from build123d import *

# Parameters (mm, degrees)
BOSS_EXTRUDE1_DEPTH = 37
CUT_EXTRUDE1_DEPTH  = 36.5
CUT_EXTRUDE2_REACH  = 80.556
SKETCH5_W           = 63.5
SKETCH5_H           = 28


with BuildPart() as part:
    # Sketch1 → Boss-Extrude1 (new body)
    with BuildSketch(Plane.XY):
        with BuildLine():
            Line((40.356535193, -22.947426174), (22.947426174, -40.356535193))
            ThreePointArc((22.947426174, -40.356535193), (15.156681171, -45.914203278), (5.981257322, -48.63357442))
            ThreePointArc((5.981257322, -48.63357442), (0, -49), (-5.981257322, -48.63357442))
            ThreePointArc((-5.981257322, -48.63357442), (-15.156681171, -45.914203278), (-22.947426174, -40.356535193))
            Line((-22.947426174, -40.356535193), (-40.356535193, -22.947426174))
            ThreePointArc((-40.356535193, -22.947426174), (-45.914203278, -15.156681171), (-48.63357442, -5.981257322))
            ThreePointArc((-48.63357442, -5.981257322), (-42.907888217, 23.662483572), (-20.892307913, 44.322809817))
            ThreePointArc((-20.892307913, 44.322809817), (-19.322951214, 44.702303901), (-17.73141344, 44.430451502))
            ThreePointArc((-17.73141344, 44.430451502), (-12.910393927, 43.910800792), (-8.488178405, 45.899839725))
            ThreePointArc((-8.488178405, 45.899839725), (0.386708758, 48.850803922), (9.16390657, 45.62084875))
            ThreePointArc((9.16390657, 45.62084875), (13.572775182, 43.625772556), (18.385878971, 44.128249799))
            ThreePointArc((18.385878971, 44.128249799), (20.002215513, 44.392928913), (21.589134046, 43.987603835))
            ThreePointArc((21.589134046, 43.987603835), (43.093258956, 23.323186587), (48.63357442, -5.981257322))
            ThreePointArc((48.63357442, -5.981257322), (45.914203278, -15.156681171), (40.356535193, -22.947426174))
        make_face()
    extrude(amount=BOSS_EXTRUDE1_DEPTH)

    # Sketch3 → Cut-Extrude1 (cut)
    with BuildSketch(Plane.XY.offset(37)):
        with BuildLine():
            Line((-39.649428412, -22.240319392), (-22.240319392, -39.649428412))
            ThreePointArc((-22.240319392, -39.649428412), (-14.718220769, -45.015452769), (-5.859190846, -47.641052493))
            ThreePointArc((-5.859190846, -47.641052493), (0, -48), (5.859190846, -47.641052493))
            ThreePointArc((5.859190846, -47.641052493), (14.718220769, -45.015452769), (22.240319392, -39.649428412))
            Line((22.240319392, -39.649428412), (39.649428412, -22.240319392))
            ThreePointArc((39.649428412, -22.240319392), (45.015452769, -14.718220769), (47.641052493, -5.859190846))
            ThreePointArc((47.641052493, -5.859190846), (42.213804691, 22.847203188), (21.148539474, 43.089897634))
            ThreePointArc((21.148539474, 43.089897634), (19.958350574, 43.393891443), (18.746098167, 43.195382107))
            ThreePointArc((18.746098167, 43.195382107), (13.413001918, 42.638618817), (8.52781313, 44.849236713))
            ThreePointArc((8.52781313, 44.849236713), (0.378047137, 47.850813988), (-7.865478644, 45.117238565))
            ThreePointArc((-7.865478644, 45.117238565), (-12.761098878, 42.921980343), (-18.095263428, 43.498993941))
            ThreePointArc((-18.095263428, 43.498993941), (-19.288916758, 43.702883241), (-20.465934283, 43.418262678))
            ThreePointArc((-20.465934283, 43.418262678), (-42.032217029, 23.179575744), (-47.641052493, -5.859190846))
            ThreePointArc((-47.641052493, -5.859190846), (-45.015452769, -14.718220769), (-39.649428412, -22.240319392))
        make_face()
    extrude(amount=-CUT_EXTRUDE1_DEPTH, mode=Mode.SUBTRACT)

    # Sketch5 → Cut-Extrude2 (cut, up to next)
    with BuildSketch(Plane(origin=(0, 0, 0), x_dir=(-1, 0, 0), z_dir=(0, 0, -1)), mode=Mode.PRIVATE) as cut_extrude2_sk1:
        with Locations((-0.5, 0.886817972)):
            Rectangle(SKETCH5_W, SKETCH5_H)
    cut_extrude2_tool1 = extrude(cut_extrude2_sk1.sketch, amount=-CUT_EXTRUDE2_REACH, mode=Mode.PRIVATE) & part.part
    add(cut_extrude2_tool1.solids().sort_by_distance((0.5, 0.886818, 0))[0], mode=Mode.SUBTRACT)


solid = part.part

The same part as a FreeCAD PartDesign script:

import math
import FreeCAD as App
import Part
import Sketcher
from FreeCAD import Vector

doc = App.newDocument("Part")
body = doc.addObject("PartDesign::Body", "Body")

# Sketch on XY plane
sketch1 = body.newObject("Sketcher::SketchObject", "Sketch")
sketch1.AttachmentSupport = (doc.getObject("XY_Plane"), [""])
sketch1.MapMode = "FlatFace"
sketch1.addGeometry([
    Part.LineSegment(Vector(22.947426, -40.356535, 0), Vector(40.356535, -22.947426, 0)),  # 0
    Part.ArcOfCircle(Part.Circle(Vector(19.850439, -2.44133, 0), Vector(0, 0, 1), 29), math.radians(-45), math.radians(-7.01138)),  # 1
    Part.ArcOfCircle(Part.Circle(Vector(0, 0, 0), Vector(0, 0, 1), 49), math.radians(-7.01138), math.radians(63.858177)),  # 2
    Part.ArcOfCircle(Part.Circle(Vector(19.826756, 40.396779, 0), Vector(0, 0, 1), 4), math.radians(63.858177), math.radians(111.113658)),  # 3
    Part.ArcOfCircle(Part.Circle(Vector(15.051653, 52.762969, 0), Vector(0, 0, 1), 9.256103), math.radians(-129.50113), math.radians(-68.886342)),  # 4
    Part.ArcOfCircle(Part.Circle(Vector(0.163094, 34.702429, 0), Vector(0, 0, 1), 14.150142), math.radians(50.49887), math.radians(127.690163)),  # 5
    Part.ArcOfCircle(Part.Circle(Vector(-14.36358, 53.052119, 0), Vector(0, 0, 1), 9.256103), math.radians(-111.336826), math.radians(-50.597829)),  # 6
    Part.ArcOfCircle(Part.Circle(Vector(-19.186813, 40.704621, 0), Vector(0, 0, 1), 4), math.radians(68.663174), math.radians(115.237641)),  # 7
    Part.ArcOfCircle(Part.Circle(Vector(0, 0, 0), Vector(0, 0, 1), 49), math.radians(115.237641), math.radians(187.01138)),  # 8
    Part.ArcOfCircle(Part.Circle(Vector(-19.850439, -2.44133, 0), Vector(0, 0, 1), 29), math.radians(-172.98862), math.radians(-135)),  # 9
    Part.LineSegment(Vector(-40.356535, -22.947426, 0), Vector(-22.947426, -40.356535, 0)),  # 10
    Part.ArcOfCircle(Part.Circle(Vector(-2.44133, -19.850439, 0), Vector(0, 0, 1), 29), math.radians(-135), math.radians(-97.01138)),  # 11
    Part.ArcOfCircle(Part.Circle(Vector(0, 0, 0), Vector(0, 0, 1), 49), math.radians(-97.01138), math.radians(-82.98862)),  # 12
    Part.ArcOfCircle(Part.Circle(Vector(2.44133, -19.850439, 0), Vector(0, 0, 1), 29), math.radians(-82.98862), math.radians(-45)),  # 13
], False)
sketch1.addConstraint([
    Sketcher.Constraint("Tangent", 0, 2, 1, 1),
    Sketcher.Constraint("Tangent", 1, 2, 2, 1),
    Sketcher.Constraint("Tangent", 2, 2, 3, 1),
    Sketcher.Constraint("Tangent", 3, 2, 4, 2),
    Sketcher.Constraint("Tangent", 4, 1, 5, 1),
    Sketcher.Constraint("Coincident", 5, 2, 6, 2),
    Sketcher.Constraint("Tangent", 6, 1, 7, 1),
    Sketcher.Constraint("Tangent", 7, 2, 8, 1),
    Sketcher.Constraint("Tangent", 8, 2, 9, 1),
    Sketcher.Constraint("Tangent", 9, 2, 10, 1),
    Sketcher.Constraint("Tangent", 10, 2, 11, 1),
    Sketcher.Constraint("Tangent", 11, 2, 12, 1),
    Sketcher.Constraint("Tangent", 12, 2, 13, 1),
    Sketcher.Constraint("Tangent", 13, 2, 0, 1),
    Sketcher.Constraint("Coincident", 2, 3, -1, 1),
    Sketcher.Constraint("Coincident", 8, 3, -1, 1),
    Sketcher.Constraint("Coincident", 12, 3, -1, 1),
    Sketcher.Constraint("Equal", 4, 6),
    Sketcher.Constraint("Equal", 3, 7),
    Sketcher.Constraint("Equal", 2, 8),
    Sketcher.Constraint("Equal", 1, 9),
    Sketcher.Constraint("Equal", 9, 11),
    Sketcher.Constraint("Equal", 8, 12),
    Sketcher.Constraint("Equal", 11, 13),
    Sketcher.Constraint("Symmetric", 0, 2, 9, 2, -2),
    Sketcher.Constraint("Perpendicular", 0, 10),
    Sketcher.Constraint("Radius", 1, 29.0),
    Sketcher.Constraint("Radius", 2, 49.0),
    Sketcher.Constraint("Radius", 3, 4.0),
    Sketcher.Constraint("Radius", 4, 9.256103),
    Sketcher.Constraint("Radius", 5, 14.150142),
    Sketcher.Constraint("Distance", 0, 24.620198),
    Sketcher.Constraint("DistanceY", 1, 3, 4, 3, 55.204299),
    Sketcher.Constraint("DistanceY", 3, 2, 4, 1, 1.492599),
    Sketcher.Constraint("DistanceX", 7, 3, 6, 1, 1.4554),
    Sketcher.Constraint("DistanceX", 7, 2, 5, 3, 21.055402),
    Sketcher.Constraint("DistanceY", -1, 1, 3, 3, 40.396779),
])
pad1 = body.newObject("PartDesign::Pad", "Pad")
pad1.Profile = sketch1
pad1.Length = 37

# Sketch on XY plane
sketch2 = body.newObject("Sketcher::SketchObject", "Sketch001")
sketch2.AttachmentSupport = (doc.getObject("XY_Plane"), [""])
sketch2.MapMode = "FlatFace"
sketch2.AttachmentOffset = App.Placement(Vector(0, 0, 37), App.Rotation())
sketch2.addGeometry([
    Part.LineSegment(Vector(-39.649428, -22.240319, 0), Vector(-22.240319, -39.649428, 0)),  # 0
    Part.ArcOfCircle(Part.Circle(Vector(-2.44133, -19.850439, 0), Vector(0, 0, 1), 28), math.radians(-135), math.radians(-97.01138)),  # 1
    Part.ArcOfCircle(Part.Circle(Vector(0, 0, 0), Vector(0, 0, 1), 48), math.radians(-97.01138), math.radians(-82.98862)),  # 2
    Part.ArcOfCircle(Part.Circle(Vector(2.44133, -19.850439, 0), Vector(0, 0, 1), 28), math.radians(-82.98862), math.radians(-45)),  # 3
    Part.LineSegment(Vector(22.240319, -39.649428, 0), Vector(39.649428, -22.240319, 0)),  # 4
    Part.ArcOfCircle(Part.Circle(Vector(19.850439, -2.44133, 0), Vector(0, 0, 1), 28), math.radians(-45), math.radians(-7.01138)),  # 5
    Part.ArcOfCircle(Part.Circle(Vector(0, 0, 0), Vector(0, 0, 1), 48), math.radians(-7.01138), math.radians(63.858177)),  # 6
    Part.ArcOfCircle(Part.Circle(Vector(19.826756, 40.396779, 0), Vector(0, 0, 1), 3), math.radians(63.858177), math.radians(111.113658)),  # 7
    Part.ArcOfCircle(Part.Circle(Vector(15.051653, 52.762969, 0), Vector(0, 0, 1), 10.256103), math.radians(-129.50113), math.radians(-68.886342)),  # 8
    Part.ArcOfCircle(Part.Circle(Vector(0.163094, 34.702429, 0), Vector(0, 0, 1), 13.150142), math.radians(50.49887), math.radians(127.627924)),  # 9
    Part.ArcOfCircle(Part.Circle(Vector(-14.36358, 53.052119, 0), Vector(0, 0, 1), 10.256103), math.radians(-111.336826), math.radians(-50.684966)),  # 10
    Part.ArcOfCircle(Part.Circle(Vector(-19.186813, 40.704621, 0), Vector(0, 0, 1), 3), math.radians(68.663174), math.radians(115.237641)),  # 11
    Part.ArcOfCircle(Part.Circle(Vector(0, 0, 0), Vector(0, 0, 1), 48), math.radians(115.237641), math.radians(187.01138)),  # 12
    Part.ArcOfCircle(Part.Circle(Vector(-19.850439, -2.44133, 0), Vector(0, 0, 1), 28), math.radians(-172.98862), math.radians(-135)),  # 13
], False)
sketch2.addConstraint([
    Sketcher.Constraint("Tangent", 0, 2, 1, 1),
    Sketcher.Constraint("Tangent", 1, 2, 2, 1),
    Sketcher.Constraint("Tangent", 2, 2, 3, 1),
    Sketcher.Constraint("Tangent", 3, 2, 4, 1),
    Sketcher.Constraint("Tangent", 4, 2, 5, 1),
    Sketcher.Constraint("Tangent", 5, 2, 6, 1),
    Sketcher.Constraint("Tangent", 6, 2, 7, 1),
    Sketcher.Constraint("Tangent", 7, 2, 8, 2),
    Sketcher.Constraint("Tangent", 8, 1, 9, 1),
    Sketcher.Constraint("Coincident", 9, 2, 10, 2),
    Sketcher.Constraint("Tangent", 10, 1, 11, 1),
    Sketcher.Constraint("Tangent", 11, 2, 12, 1),
    Sketcher.Constraint("Tangent", 12, 2, 13, 1),
    Sketcher.Constraint("Tangent", 13, 2, 0, 1),
    Sketcher.Constraint("Coincident", 2, 3, -1, 1),
    Sketcher.Constraint("Coincident", 6, 3, -1, 1),
    Sketcher.Constraint("Coincident", 12, 3, -1, 1),
    Sketcher.Constraint("Equal", 1, 3),
    Sketcher.Constraint("Equal", 3, 5),
    Sketcher.Constraint("Equal", 2, 6),
    Sketcher.Constraint("Equal", 8, 10),
    Sketcher.Constraint("Equal", 7, 11),
    Sketcher.Constraint("Equal", 6, 12),
    Sketcher.Constraint("Equal", 5, 13),
    Sketcher.Constraint("Symmetric", 0, 2, 3, 2, -2),
    Sketcher.Constraint("Perpendicular", 0, 4),
    Sketcher.Constraint("Radius", 1, 28.0),
    Sketcher.Constraint("Radius", 2, 48.0),
    Sketcher.Constraint("Radius", 7, 3.0),
    Sketcher.Constraint("Radius", 8, 10.256103),
    Sketcher.Constraint("Radius", 9, 13.150142),
    Sketcher.Constraint("DistanceY", 8, 1, 9, 2, 0.268002),
    Sketcher.Constraint("Distance", 0, 24.620198),
    Sketcher.Constraint("DistanceX", -1, 1, 7, 2, 18.746098),
    Sketcher.Constraint("DistanceY", 5, 3, 8, 3, 55.204299),
    Sketcher.Constraint("DistanceX", 10, 3, 9, 2, 6.498102),
    Sketcher.Constraint("DistanceY", -1, 1, 9, 3, 34.702429),
])
pocket1 = body.newObject("PartDesign::Pocket", "Pocket")
pocket1.Profile = sketch2
pocket1.Length = 36.5

# Sketch on XY plane
sketch3 = body.newObject("Sketcher::SketchObject", "Sketch002")
sketch3.AttachmentSupport = (doc.getObject("XY_Plane"), [""])
sketch3.MapMode = "FlatFace"
sketch3.addGeometry([
    Part.LineSegment(Vector(32.25, 14.886818, 0), Vector(32.25, -13.113182, 0)),
    Part.LineSegment(Vector(32.25, -13.113182, 0), Vector(-31.25, -13.113182, 0)),
    Part.LineSegment(Vector(-31.25, -13.113182, 0), Vector(-31.25, 14.886818, 0)),
    Part.LineSegment(Vector(-31.25, 14.886818, 0), Vector(32.25, 14.886818, 0)),
], False)
sketch3.addConstraint([
    Sketcher.Constraint("Coincident", 0, 2, 1, 1),
    Sketcher.Constraint("Coincident", 1, 2, 2, 1),
    Sketcher.Constraint("Coincident", 2, 2, 3, 1),
    Sketcher.Constraint("Coincident", 3, 2, 0, 1),
    Sketcher.Constraint("Vertical", 0),
    Sketcher.Constraint("Horizontal", 1),
    Sketcher.Constraint("Vertical", 2),
    Sketcher.Constraint("Horizontal", 3),
    Sketcher.Constraint("DistanceY", 0, 2, 0, 1, 28.0),
    Sketcher.Constraint("DistanceX", 1, 2, 1, 1, 63.5),
    Sketcher.Constraint("DistanceX", -1, 1, 0, 2, 32.25),
    Sketcher.Constraint("DistanceY", 0, 2, -1, 1, 13.113182),
])
pocket2 = body.newObject("PartDesign::Pocket", "Pocket001")
pocket2.Profile = sketch3
pocket2.Type = "UpToFirst"
pocket2.Reversed = True

doc.recompute()
